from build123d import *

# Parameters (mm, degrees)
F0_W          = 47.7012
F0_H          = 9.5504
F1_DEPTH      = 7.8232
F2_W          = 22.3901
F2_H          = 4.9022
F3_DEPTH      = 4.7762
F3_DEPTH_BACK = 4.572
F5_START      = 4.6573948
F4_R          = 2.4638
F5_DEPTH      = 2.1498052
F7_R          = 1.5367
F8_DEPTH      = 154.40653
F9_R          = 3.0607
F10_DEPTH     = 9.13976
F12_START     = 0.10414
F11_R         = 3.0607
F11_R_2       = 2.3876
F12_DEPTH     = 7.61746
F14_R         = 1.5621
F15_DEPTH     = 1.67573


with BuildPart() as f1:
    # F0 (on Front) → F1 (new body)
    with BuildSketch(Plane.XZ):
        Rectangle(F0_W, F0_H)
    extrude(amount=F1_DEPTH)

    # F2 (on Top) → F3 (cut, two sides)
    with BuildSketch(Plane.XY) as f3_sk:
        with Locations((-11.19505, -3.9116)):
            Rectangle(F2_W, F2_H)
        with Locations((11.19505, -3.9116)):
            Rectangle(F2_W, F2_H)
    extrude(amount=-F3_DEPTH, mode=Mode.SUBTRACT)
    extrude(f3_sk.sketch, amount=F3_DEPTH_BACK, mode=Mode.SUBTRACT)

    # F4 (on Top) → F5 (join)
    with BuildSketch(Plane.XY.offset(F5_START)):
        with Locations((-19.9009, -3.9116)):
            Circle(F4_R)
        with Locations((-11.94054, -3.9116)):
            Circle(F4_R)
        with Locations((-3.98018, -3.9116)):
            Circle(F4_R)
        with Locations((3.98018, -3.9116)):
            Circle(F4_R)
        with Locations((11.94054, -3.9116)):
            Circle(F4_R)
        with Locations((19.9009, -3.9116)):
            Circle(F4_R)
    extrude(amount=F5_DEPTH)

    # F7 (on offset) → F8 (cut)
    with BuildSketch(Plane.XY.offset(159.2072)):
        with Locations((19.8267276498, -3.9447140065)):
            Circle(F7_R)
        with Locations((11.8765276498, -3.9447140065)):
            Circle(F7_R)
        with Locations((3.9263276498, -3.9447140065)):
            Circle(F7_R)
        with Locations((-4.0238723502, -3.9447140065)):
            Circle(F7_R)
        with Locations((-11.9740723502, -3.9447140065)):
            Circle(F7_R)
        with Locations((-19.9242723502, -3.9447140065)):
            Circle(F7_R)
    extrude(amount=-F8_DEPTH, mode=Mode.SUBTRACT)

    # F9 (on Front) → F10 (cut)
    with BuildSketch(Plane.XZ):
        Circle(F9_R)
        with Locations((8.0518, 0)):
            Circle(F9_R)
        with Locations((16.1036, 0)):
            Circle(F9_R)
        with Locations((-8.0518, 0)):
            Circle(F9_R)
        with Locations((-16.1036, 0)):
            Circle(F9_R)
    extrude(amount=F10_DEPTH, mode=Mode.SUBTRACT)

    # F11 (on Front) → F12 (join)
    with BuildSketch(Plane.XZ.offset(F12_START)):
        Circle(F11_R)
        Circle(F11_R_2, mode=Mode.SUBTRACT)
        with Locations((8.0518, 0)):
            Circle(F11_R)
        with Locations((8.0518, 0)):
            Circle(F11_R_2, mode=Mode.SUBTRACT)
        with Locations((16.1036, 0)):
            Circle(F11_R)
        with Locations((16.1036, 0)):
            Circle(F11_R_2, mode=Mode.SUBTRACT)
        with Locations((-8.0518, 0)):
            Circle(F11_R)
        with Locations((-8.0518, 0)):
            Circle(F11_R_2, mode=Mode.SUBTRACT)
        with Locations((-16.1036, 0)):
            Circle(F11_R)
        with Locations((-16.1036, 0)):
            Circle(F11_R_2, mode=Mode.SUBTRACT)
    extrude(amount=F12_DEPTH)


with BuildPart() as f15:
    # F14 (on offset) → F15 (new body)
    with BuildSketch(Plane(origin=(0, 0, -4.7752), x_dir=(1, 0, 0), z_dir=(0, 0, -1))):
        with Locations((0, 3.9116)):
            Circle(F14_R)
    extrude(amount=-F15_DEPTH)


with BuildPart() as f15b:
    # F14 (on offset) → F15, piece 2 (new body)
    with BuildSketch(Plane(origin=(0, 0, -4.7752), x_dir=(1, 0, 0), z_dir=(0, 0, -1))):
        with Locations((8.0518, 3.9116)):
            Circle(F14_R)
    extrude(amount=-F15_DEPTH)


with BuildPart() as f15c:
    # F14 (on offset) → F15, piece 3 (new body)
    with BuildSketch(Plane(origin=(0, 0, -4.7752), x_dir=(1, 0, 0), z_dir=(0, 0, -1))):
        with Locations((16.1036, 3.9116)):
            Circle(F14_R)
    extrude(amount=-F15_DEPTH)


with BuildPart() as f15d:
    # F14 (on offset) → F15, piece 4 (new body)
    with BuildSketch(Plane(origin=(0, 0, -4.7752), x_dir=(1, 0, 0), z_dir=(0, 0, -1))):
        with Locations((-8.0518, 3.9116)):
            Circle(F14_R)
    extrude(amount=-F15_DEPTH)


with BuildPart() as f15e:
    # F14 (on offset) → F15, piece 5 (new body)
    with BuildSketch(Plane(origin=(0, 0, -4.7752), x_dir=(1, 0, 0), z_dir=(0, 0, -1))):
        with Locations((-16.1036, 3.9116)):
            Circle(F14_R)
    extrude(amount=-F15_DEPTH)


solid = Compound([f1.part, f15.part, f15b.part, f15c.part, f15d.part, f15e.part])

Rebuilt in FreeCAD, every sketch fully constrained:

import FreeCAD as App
import Part
import Sketcher
Q = App.Units.Quantity

doc = App.newDocument("Part")
body = doc.addObject("PartDesign::Body", "Body")

# Sketch on XZ plane
sketch1 = body.newObject("Sketcher::SketchObject", "Sketch")
sketch1.AttachmentSupport = (doc.getObject("XZ_Plane"), [""])
sketch1.MapMode = "FlatFace"
sketch1.addGeometry(Part.LineSegment(App.Vector(-24, 5, 0), App.Vector(-24, -5, 0)), False)
sketch1.addGeometry(Part.LineSegment(App.Vector(-24, -5, 0), App.Vector(24, -5, 0)), False)
sketch1.addGeometry(Part.LineSegment(App.Vector(24, -5, 0), App.Vector(24, 5, 0)), False)
sketch1.addGeometry(Part.LineSegment(App.Vector(24, 5, 0), App.Vector(-24, 5, 0)), False)
sketch1.addConstraint(Sketcher.Constraint("Coincident", 0, 2, 1, 1))
sketch1.addConstraint(Sketcher.Constraint("Coincident", 1, 2, 2, 1))
sketch1.addConstraint(Sketcher.Constraint("Coincident", 2, 2, 3, 1))
sketch1.addConstraint(Sketcher.Constraint("Coincident", 3, 2, 0, 1))
sketch1.addConstraint(Sketcher.Constraint("Vertical", 0))
sketch1.addConstraint(Sketcher.Constraint("Horizontal", 1))
sketch1.addConstraint(Sketcher.Constraint("Vertical", 2))
sketch1.addConstraint(Sketcher.Constraint("Horizontal", 3))
sketch1.addConstraint(Sketcher.Constraint("Symmetric", 0, 2, 2, 2, -1, 1))
sketch1.addConstraint(Sketcher.Constraint("DistanceX", 1, 1, 1, 2, Q("1.878 in")))
sketch1.addConstraint(Sketcher.Constraint("DistanceY", 0, 2, 0, 1, Q("0.376 in")))
pad1 = body.newObject("PartDesign::Pad", "Pad")
pad1.Profile = sketch1
pad1.Length = Q("0.308 in")

# Sketch on XY plane
sketch2 = body.newObject("Sketcher::SketchObject", "Sketch001")
sketch2.AttachmentSupport = (doc.getObject("XY_Plane"), [""])
sketch2.MapMode = "FlatFace"
sketch2.addGeometry(Part.LineSegment(App.Vector(-22.4, -1.5, 0), App.Vector(-22.4, -6.4, 0)), False)
sketch2.addGeometry(Part.LineSegment(App.Vector(-22.4, -6.4, 0), App.Vector(22.4, -6.4, 0)), False)
sketch2.addGeometry(Part.LineSegment(App.Vector(22.4, -6.4, 0), App.Vector(22.4, -1.5, 0)), False)
sketch2.addGeometry(Part.LineSegment(App.Vector(22.4, -1.5, 0), App.Vector(-22.4, -1.5, 0)), False)
sketch2.addConstraint(Sketcher.Constraint("Coincident", 0, 2, 1, 1))
sketch2.addConstraint(Sketcher.Constraint("Coincident", 1, 2, 2, 1))
sketch2.addConstraint(Sketcher.Constraint("Coincident", 2, 2, 3, 1))
sketch2.addConstraint(Sketcher.Constraint("Coincident", 3, 2, 0, 1))
sketch2.addConstraint(Sketcher.Constraint("Vertical", 0))
sketch2.addConstraint(Sketcher.Constraint("Horizontal", 1))
sketch2.addConstraint(Sketcher.Constraint("Vertical", 2))
sketch2.addConstraint(Sketcher.Constraint("Horizontal", 3))
sketch2.addConstraint(Sketcher.Constraint("DistanceX", 1, 1, 1, 2, Q("1.763 in")))
sketch2.addConstraint(Sketcher.Constraint("DistanceY", 0, 2, 0, 1, Q("0.193 in")))
sketch2.addConstraint(Sketcher.Constraint("DistanceX", 0, 2, -1, 1, Q("0.8815 in")))
sketch2.addConstraint(Sketcher.Constraint("DistanceY", 0, 2, -1, 1, Q("0.2505 in")))
pocket1 = body.newObject("PartDesign::Pocket", "Pocket")
pocket1.Profile = sketch2
pocket1.Type = "TwoLengths"
pocket1.Length = 4.7762
pocket1.Length2 = Q("0.18 in")

# Sketch on XY plane
sketch3 = body.newObject("Sketcher::SketchObject", "Sketch002")
sketch3.AttachmentSupport = (doc.getObject("XY_Plane"), [""])
sketch3.MapMode = "FlatFace"
sketch3.AttachmentOffset = App.Placement(App.Vector(0, 0, 4.657395), App.Rotation())
sketch3.addGeometry(Part.Circle(App.Vector(-19.9, -3.9, 0), App.Vector(0, 0, 1), 2.5), False)
sketch3.addGeometry(Part.Circle(App.Vector(-11.9, -3.9, 0), App.Vector(0, 0, 1), 2.5), False)
sketch3.addGeometry(Part.Circle(App.Vector(-4, -3.9, 0), App.Vector(0, 0, 1), 2.5), False)
sketch3.addGeometry(Part.Circle(App.Vector(4, -3.9, 0), App.Vector(0, 0, 1), 2.5), False)
sketch3.addGeometry(Part.Circle(App.Vector(11.9, -3.9, 0), App.Vector(0, 0, 1), 2.5), False)
sketch3.addGeometry(Part.Circle(App.Vector(19.9, -3.9, 0), App.Vector(0, 0, 1), 2.5), False)
sketch3.addConstraint(Sketcher.Constraint("Equal", 0, 1))
sketch3.addConstraint(Sketcher.Constraint("Equal", 1, 2))
sketch3.addConstraint(Sketcher.Constraint("Equal", 2, 3))
sketch3.addConstraint(Sketcher.Constraint("Equal", 3, 4))
sketch3.addConstraint(Sketcher.Constraint("Equal", 4, 5))
sketch3.addConstraint(Sketcher.Constraint("Symmetric", 2, 3, 3, 3, -2))
sketch3.addConstraint(Sketcher.Constraint("Symmetric", 1, 3, 4, 3, -2))
sketch3.addConstraint(Sketcher.Constraint("Symmetric", 0, 3, 5, 3, -2))
sketch3.addConstraint(Sketcher.Constraint("Horizontal", 0, 3, 1, 3))
sketch3.addConstraint(Sketcher.Constraint("Horizontal", 1, 3, 2, 3))
sketch3.addConstraint(Sketcher.Constraint("Diameter", 0, Q("0.194 in")))
sketch3.addConstraint(Sketcher.Constraint("DistanceY", 0, 3, -1, 1, Q("0.154 in")))
sketch3.addConstraint(Sketcher.Constraint("DistanceX", 0, 3, 5, 3, Q("1.567 in")))
sketch3.addConstraint(Sketcher.Constraint("DistanceX", 1, 3, -1, 1, Q("0.4701 in")))
sketch3.addConstraint(Sketcher.Constraint("DistanceX", 2, 3, -1, 1, Q("0.1567 in")))
pad2 = body.newObject("PartDesign::Pad", "Pad001")
pad2.Profile = sketch3
pad2.Length = 2.149805

# Sketch on XY plane
sketch4 = body.newObject("Sketcher::SketchObject", "Sketch003")
sketch4.AttachmentSupport = (doc.getObject("XY_Plane"), [""])
sketch4.MapMode = "FlatFace"
sketch4.AttachmentOffset = App.Placement(App.Vector(0, 0, 6.268 * 25.4), App.Rotation())
sketch4.addGeometry(Part.Circle(App.Vector(19.8, -3.9, 0), App.Vector(0, 0, 1), 1.5), False)
sketch4.addGeometry(Part.Circle(App.Vector(11.9, -3.9, 0), App.Vector(0, 0, 1), 1.5), False)
sketch4.addGeometry(Part.Circle(App.Vector(3.9, -3.9, 0), App.Vector(0, 0, 1), 1.5), False)
sketch4.addGeometry(Part.Circle(App.Vector(-4, -3.9, 0), App.Vector(0, 0, 1), 1.5), False)
sketch4.addGeometry(Part.Circle(App.Vector(-12, -3.9, 0), App.Vector(0, 0, 1), 1.5), False)
sketch4.addGeometry(Part.Circle(App.Vector(-19.9, -3.9, 0), App.Vector(0, 0, 1), 1.5), False)
sketch4.addConstraint(Sketcher.Constraint("Equal", 0, 1))
sketch4.addConstraint(Sketcher.Constraint("Equal", 1, 2))
sketch4.addConstraint(Sketcher.Constraint("Equal", 2, 3))
sketch4.addConstraint(Sketcher.Constraint("Equal", 3, 4))
sketch4.addConstraint(Sketcher.Constraint("Equal", 4, 5))
sketch4.addConstraint(Sketcher.Constraint("Horizontal", 0, 3, 1, 3))
sketch4.addConstraint(Sketcher.Constraint("Horizontal", 1, 3, 2, 3))
sketch4.addConstraint(Sketcher.Constraint("Horizontal", 2, 3, 3, 3))
sketch4.addConstraint(Sketcher.Constraint("Horizontal", 3, 3, 4, 3))
sketch4.addConstraint(Sketcher.Constraint("Horizontal", 4, 3, 5, 3))
sketch4.addConstraint(Sketcher.Constraint("Diameter", 0, Q("0.121 in")))
sketch4.addConstraint(Sketcher.Constraint("DistanceX", 1, 3, 0, 3, Q("0.313 in")))
sketch4.addConstraint(Sketcher.Constraint("DistanceX", 2, 3, 1, 3, Q("0.313 in")))
sketch4.addConstraint(Sketcher.Constraint("DistanceX", 3, 3, 2, 3, Q("0.313 in")))
sketch4.addConstraint(Sketcher.Constraint("DistanceX", 4, 3, 3, 3, Q("0.313 in")))
sketch4.addConstraint(Sketcher.Constraint("DistanceX", 5, 3, 4, 3, Q("0.313 in")))
sketch4.addConstraint(Sketcher.Constraint("DistanceX", -1, 1, 0, 3, Q("19.826728 mm")))
sketch4.addConstraint(Sketcher.Constraint("DistanceY", 0, 3, -1, 1, Q("3.944714 mm")))
pocket2 = body.newObject("PartDesign::Pocket", "Pocket001")
pocket2.Profile = sketch4
pocket2.Length = 154.40653

# Sketch on XZ plane
sketch5 = body.newObject("Sketcher::SketchObject", "Sketch004")
sketch5.AttachmentSupport = (doc.getObject("XZ_Plane"), [""])
sketch5.MapMode = "FlatFace"
sketch5.addGeometry(Part.Circle(App.Vector(0, 0, 0), App.Vector(0, 0, 1), 3.1), False)
sketch5.addGeometry(Part.Circle(App.Vector(8.1, 0, 0), App.Vector(0, 0, 1), 3.1), False)
sketch5.addGeometry(Part.Circle(App.Vector(16.1, 0, 0), App.Vector(0, 0, 1), 3.1), False)
sketch5.addGeometry(Part.Circle(App.Vector(-8.1, 0, 0), App.Vector(0, 0, 1), 3.1), False)
sketch5.addGeometry(Part.Circle(App.Vector(-16.1, 0, 0), App.Vector(0, 0, 1), 3.1), False)
sketch5.addConstraint(Sketcher.Constraint("Coincident", 0, 3, -1, 1))
sketch5.addConstraint(Sketcher.Constraint("Equal", 0, 1))
sketch5.addConstraint(Sketcher.Constraint("Equal", 1, 2))
sketch5.addConstraint(Sketcher.Constraint("Equal", 2, 3))
sketch5.addConstraint(Sketcher.Constraint("Equal", 3, 4))
sketch5.addConstraint(Sketcher.Constraint("Symmetric", 1, 3, 3, 3, -1, 1))
sketch5.addConstraint(Sketcher.Constraint("Symmetric", 2, 3, 4, 3, -1, 1))
sketch5.addConstraint(Sketcher.Constraint("PointOnObject", 1, 3, -1))
sketch5.addConstraint(Sketcher.Constraint("PointOnObject", 2, 3, -1))
sketch5.addConstraint(Sketcher.Constraint("Diameter", 0, Q("0.241 in")))
sketch5.addConstraint(Sketcher.Constraint("DistanceX", -1, 1, 1, 3, Q("0.317 in")))
sketch5.addConstraint(Sketcher.Constraint("DistanceX", -1, 1, 2, 3, Q("0.634 in")))
pocket3 = body.newObject("PartDesign::Pocket", "Pocket002")
pocket3.Profile = sketch5
pocket3.Length = 9.13976
pocket3.Reversed = True

# Sketch on XZ plane
sketch6 = body.newObject("Sketcher::SketchObject", "Sketch005")
sketch6.AttachmentSupport = (doc.getObject("XZ_Plane"), [""])
sketch6.MapMode = "FlatFace"
sketch6.AttachmentOffset = App.Placement(App.Vector(0, 0, 0.0041 * 25.4), App.Rotation())
sketch6.addGeometry(Part.Circle(App.Vector(0, 0, 0), App.Vector(0, 0, 1), 3.1), False)
sketch6.addGeometry(Part.Circle(App.Vector(0, 0, 0), App.Vector(0, 0, 1), 2.4), False)
sketch6.addGeometry(Part.Circle(App.Vector(8.1, 0, 0), App.Vector(0, 0, 1), 3.1), False)
sketch6.addGeometry(Part.Circle(App.Vector(8.1, 0, 0), App.Vector(0, 0, 1), 2.4), False)
sketch6.addGeometry(Part.Circle(App.Vector(16.1, 0, 0), App.Vector(0, 0, 1), 3.1), False)
sketch6.addGeometry(Part.Circle(App.Vector(16.1, 0, 0), App.Vector(0, 0, 1), 2.4), False)
sketch6.addGeometry(Part.Circle(App.Vector(-8.1, 0, 0), App.Vector(0, 0, 1), 3.1), False)
sketch6.addGeometry(Part.Circle(App.Vector(-8.1, 0, 0), App.Vector(0, 0, 1), 2.4), False)
sketch6.addGeometry(Part.Circle(App.Vector(-16.1, 0, 0), App.Vector(0, 0, 1), 3.1), False)
sketch6.addGeometry(Part.Circle(App.Vector(-16.1, 0, 0), App.Vector(0, 0, 1), 2.4), False)
sketch6.addConstraint(Sketcher.Constraint("Coincident", 0, 3, -1, 1))
sketch6.addConstraint(Sketcher.Constraint("Coincident", 1, 3, -1, 1))
sketch6.addConstraint(Sketcher.Constraint("Coincident", 3, 3, 2, 3))
sketch6.addConstraint(Sketcher.Constraint("Coincident", 5, 3, 4, 3))
sketch6.addConstraint(Sketcher.Constraint("Coincident", 7, 3, 6, 3))
sketch6.addConstraint(Sketcher.Constraint("Coincident", 9, 3, 8, 3))
sketch6.addConstraint(Sketcher.Constraint("Equal", 0, 2))
sketch6.addConstraint(Sketcher.Constraint("Equal", 1, 3))
sketch6.addConstraint(Sketcher.Constraint("Equal", 2, 4))
sketch6.addConstraint(Sketcher.Constraint("Equal", 3, 5))
sketch6.addConstraint(Sketcher.Constraint("Equal", 4, 6))
sketch6.addConstraint(Sketcher.Constraint("Equal", 5, 7))
sketch6.addConstraint(Sketcher.Constraint("Equal", 6, 8))
sketch6.addConstraint(Sketcher.Constraint("Equal", 7, 9))
sketch6.addConstraint(Sketcher.Constraint("Symmetric", 2, 3, 6, 3, -1, 1))
sketch6.addConstraint(Sketcher.Constraint("Symmetric", 4, 3, 8, 3, -1, 1))
sketch6.addConstraint(Sketcher.Constraint("PointOnObject", 2, 3, -1))
sketch6.addConstraint(Sketcher.Constraint("PointOnObject", 4, 3, -1))
sketch6.addConstraint(Sketcher.Constraint("Diameter", 0, Q("0.241 in")))
sketch6.addConstraint(Sketcher.Constraint("Diameter", 1, Q("0.188 in")))
sketch6.addConstraint(Sketcher.Constraint("DistanceX", -1, 1, 2, 3, Q("0.317 in")))
sketch6.addConstraint(Sketcher.Constraint("DistanceX", -1, 1, 4, 3, Q("0.634 in")))
pad3 = body.newObject("PartDesign::Pad", "Pad002")
pad3.Profile = sketch6
pad3.Length = Q("0.2999 in")
body2 = doc.addObject("PartDesign::Body", "Body001")

# Sketch on XY plane
sketch7 = body2.newObject("Sketcher::SketchObject", "Sketch006")
sketch7.AttachmentSupport = (doc.getObject("XY_Plane001"), [""])
sketch7.MapMode = "FlatFace"
sketch7.AttachmentOffset = App.Placement(App.Vector(0, 0, -0.188 * 25.4), App.Rotation())
sketch7.addGeometry(Part.Circle(App.Vector(0, -3.9, 0), App.Vector(0, 0, 1), 1.6), False)
sketch7.addConstraint(Sketcher.Constraint("PointOnObject", 0, 3, -2))
sketch7.addConstraint(Sketcher.Constraint("Diameter", 0, Q("0.123 in")))
sketch7.addConstraint(Sketcher.Constraint("DistanceY", 0, 3, -1, 1, Q("0.154 in")))
pad4 = body2.newObject("PartDesign::Pad", "Pad003")
pad4.Profile = sketch7
pad4.Length = 1.67573
body3 = doc.addObject("PartDesign::Body", "Body002")

# Sketch on XY plane
sketch8 = body3.newObject("Sketcher::SketchObject", "Sketch007")
sketch8.AttachmentSupport = (doc.getObject("XY_Plane002"), [""])
sketch8.MapMode = "FlatFace"
sketch8.AttachmentOffset = App.Placement(App.Vector(0, 0, -0.188 * 25.4), App.Rotation())
sketch8.addGeometry(Part.Circle(App.Vector(8.1, -3.9, 0), App.Vector(0, 0, 1), 1.6), False)
sketch8.addConstraint(Sketcher.Constraint("Diameter", 0, Q("0.123 in")))
sketch8.addConstraint(Sketcher.Constraint("DistanceX", -1, 1, 0, 3, Q("0.317 in")))
sketch8.addConstraint(Sketcher.Constraint("DistanceY", 0, 3, -1, 1, Q("0.154 in")))
pad5 = body3.newObject("PartDesign::Pad", "Pad004")
pad5.Profile = sketch8
pad5.Length = 1.67573
body4 = doc.addObject("PartDesign::Body", "Body003")

# Sketch on XY plane
sketch9 = body4.newObject("Sketcher::SketchObject", "Sketch008")
sketch9.AttachmentSupport = (doc.getObject("XY_Plane003"), [""])
sketch9.MapMode = "FlatFace"
sketch9.AttachmentOffset = App.Placement(App.Vector(0, 0, -0.188 * 25.4), App.Rotation())
sketch9.addGeometry(Part.Circle(App.Vector(16.1, -3.9, 0), App.Vector(0, 0, 1), 1.6), False)
sketch9.addConstraint(Sketcher.Constraint("Diameter", 0, Q("0.123 in")))
sketch9.addConstraint(Sketcher.Constraint("DistanceX", -1, 1, 0, 3, Q("0.634 in")))
sketch9.addConstraint(Sketcher.Constraint("DistanceY", 0, 3, -1, 1, Q("0.154 in")))
pad6 = body4.newObject("PartDesign::Pad", "Pad005")
pad6.Profile = sketch9
pad6.Length = 1.67573
body5 = doc.addObject("PartDesign::Body", "Body004")

# Sketch on XY plane
sketch10 = body5.newObject("Sketcher::SketchObject", "Sketch009")
sketch10.AttachmentSupport = (doc.getObject("XY_Plane004"), [""])
sketch10.MapMode = "FlatFace"
sketch10.AttachmentOffset = App.Placement(App.Vector(0, 0, -0.188 * 25.4), App.Rotation())
sketch10.addGeometry(Part.Circle(App.Vector(-8.1, -3.9, 0), App.Vector(0, 0, 1), 1.6), False)
sketch10.addConstraint(Sketcher.Constraint("Diameter", 0, Q("0.123 in")))
sketch10.addConstraint(Sketcher.Constraint("DistanceX", 0, 3, -1, 1, Q("0.317 in")))
sketch10.addConstraint(Sketcher.Constraint("DistanceY", 0, 3, -1, 1, Q("0.154 in")))
pad7 = body5.newObject("PartDesign::Pad", "Pad006")
pad7.Profile = sketch10
pad7.Length = 1.67573
body6 = doc.addObject("PartDesign::Body", "Body005")

# Sketch on XY plane
sketch11 = body6.newObject("Sketcher::SketchObject", "Sketch010")
sketch11.AttachmentSupport = (doc.getObject("XY_Plane005"), [""])
sketch11.MapMode = "FlatFace"
sketch11.AttachmentOffset = App.Placement(App.Vector(0, 0, -0.188 * 25.4), App.Rotation())
sketch11.addGeometry(Part.Circle(App.Vector(-16.1, -3.9, 0), App.Vector(0, 0, 1), 1.6), False)
sketch11.addConstraint(Sketcher.Constraint("Diameter", 0, Q("0.123 in")))
sketch11.addConstraint(Sketcher.Constraint("DistanceX", 0, 3, -1, 1, Q("0.634 in")))
sketch11.addConstraint(Sketcher.Constraint("DistanceY", 0, 3, -1, 1, Q("0.154 in")))
pad8 = body6.newObject("PartDesign::Pad", "Pad007")
pad8.Profile = sketch11
pad8.Length = 1.67573

doc.recompute()
